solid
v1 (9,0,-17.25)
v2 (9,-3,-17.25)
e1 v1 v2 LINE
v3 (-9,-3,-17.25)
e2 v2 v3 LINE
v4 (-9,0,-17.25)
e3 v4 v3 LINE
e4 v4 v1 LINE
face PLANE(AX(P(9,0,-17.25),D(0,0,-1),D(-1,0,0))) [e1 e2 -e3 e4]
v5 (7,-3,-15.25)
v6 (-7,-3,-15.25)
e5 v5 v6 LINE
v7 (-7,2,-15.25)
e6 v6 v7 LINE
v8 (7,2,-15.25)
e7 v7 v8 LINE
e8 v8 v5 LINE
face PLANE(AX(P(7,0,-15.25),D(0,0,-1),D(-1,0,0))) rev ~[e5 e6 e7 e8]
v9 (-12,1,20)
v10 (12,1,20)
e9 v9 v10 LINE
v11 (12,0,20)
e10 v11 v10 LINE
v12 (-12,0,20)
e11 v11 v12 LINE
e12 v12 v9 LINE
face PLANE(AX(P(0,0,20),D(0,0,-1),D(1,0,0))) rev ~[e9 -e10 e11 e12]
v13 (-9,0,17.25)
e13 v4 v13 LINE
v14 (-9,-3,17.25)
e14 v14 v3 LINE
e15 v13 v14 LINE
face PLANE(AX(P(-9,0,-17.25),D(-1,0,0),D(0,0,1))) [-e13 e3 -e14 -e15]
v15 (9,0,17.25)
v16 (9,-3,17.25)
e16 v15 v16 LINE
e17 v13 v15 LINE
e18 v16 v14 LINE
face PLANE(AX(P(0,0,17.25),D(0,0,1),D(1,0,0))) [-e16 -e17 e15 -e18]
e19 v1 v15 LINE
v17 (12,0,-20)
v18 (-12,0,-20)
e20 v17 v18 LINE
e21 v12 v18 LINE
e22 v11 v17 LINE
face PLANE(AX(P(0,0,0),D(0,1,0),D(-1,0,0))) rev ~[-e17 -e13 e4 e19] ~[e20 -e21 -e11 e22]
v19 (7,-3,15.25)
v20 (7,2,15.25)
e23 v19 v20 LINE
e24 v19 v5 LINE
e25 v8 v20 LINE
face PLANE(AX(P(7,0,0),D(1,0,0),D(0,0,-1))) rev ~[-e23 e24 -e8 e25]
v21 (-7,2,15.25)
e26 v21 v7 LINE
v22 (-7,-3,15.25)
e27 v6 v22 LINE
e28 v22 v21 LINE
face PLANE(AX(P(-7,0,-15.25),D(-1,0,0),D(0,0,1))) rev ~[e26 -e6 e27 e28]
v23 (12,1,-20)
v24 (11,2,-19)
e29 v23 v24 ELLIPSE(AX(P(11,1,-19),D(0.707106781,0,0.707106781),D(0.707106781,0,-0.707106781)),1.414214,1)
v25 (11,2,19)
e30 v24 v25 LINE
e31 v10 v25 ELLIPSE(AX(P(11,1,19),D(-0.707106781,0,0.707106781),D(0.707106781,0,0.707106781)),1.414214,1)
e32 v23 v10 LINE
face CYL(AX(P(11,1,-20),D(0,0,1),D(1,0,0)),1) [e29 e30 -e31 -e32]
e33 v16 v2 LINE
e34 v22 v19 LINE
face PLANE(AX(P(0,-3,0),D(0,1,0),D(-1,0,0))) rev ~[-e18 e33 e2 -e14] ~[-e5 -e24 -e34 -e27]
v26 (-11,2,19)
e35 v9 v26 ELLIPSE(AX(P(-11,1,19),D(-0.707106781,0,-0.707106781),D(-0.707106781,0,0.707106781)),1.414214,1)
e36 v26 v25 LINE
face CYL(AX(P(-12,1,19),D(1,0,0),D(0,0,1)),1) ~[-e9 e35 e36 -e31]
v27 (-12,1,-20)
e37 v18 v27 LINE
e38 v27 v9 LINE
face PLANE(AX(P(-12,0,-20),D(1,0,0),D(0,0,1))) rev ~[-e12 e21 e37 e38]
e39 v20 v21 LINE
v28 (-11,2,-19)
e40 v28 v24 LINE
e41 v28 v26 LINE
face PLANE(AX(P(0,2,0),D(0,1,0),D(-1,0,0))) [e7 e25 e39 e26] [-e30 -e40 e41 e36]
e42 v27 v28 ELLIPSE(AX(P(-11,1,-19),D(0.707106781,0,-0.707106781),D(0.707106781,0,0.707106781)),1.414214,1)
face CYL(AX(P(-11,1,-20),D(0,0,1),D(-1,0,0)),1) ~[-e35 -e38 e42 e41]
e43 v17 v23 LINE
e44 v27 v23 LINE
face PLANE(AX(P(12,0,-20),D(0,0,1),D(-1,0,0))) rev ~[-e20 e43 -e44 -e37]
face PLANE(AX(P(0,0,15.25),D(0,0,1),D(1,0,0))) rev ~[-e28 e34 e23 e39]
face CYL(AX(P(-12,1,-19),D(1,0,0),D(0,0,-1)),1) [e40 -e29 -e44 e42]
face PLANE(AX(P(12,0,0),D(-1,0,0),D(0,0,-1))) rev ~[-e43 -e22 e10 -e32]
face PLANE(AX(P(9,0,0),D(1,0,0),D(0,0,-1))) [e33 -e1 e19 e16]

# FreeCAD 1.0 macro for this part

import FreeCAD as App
import Part
import Sketcher
Q = App.Units.Quantity


def edges_at(feature, points):
    """Names of the edges that pass closest to the given points."""
    edges = feature.Shape.Edges
    near = lambda p: min(range(len(edges)), key=lambda i: edges[i].distToShape(Part.Vertex(*p))[0])
    return sorted({f"Edge{near(p) + 1}" for p in points})

doc = App.newDocument("Part")
body = doc.addObject("PartDesign::Body", "Body")

# Sketch on XZ plane
sketch1 = body.newObject("Sketcher::SketchObject", "Sketch")
sketch1.AttachmentSupport = (doc.getObject("XZ_Plane"), [""])
sketch1.MapMode = "FlatFace"
sketch1.addGeometry([
    Part.LineSegment(App.Vector(9, -17, 0), App.Vector(-9, -17, 0)),  # 0
    Part.LineSegment(App.Vector(-9, -17, 0), App.Vector(-9, 17, 0)),  # 1
    Part.LineSegment(App.Vector(-9, 17, 0), App.Vector(9, 17, 0)),  # 2
    Part.LineSegment(App.Vector(9, 17, 0), App.Vector(9, -17, 0)),  # 3
    Part.LineSegment(App.Vector(7, -15, 0), App.Vector(7, 15, 0)),  # 4
    Part.LineSegment(App.Vector(7, 15, 0), App.Vector(-7, 15, 0)),  # 5
    Part.LineSegment(App.Vector(-7, 15, 0), App.Vector(-7, -15, 0)),  # 6
    Part.LineSegment(App.Vector(-7, -15, 0), App.Vector(7, -15, 0)),  # 7
], False)
sketch1.addConstraint([
    Sketcher.Constraint("Coincident", 0, 2, 1, 1),
    Sketcher.Constraint("Coincident", 1, 2, 2, 1),
    Sketcher.Constraint("Coincident", 2, 2, 3, 1),
    Sketcher.Constraint("Coincident", 3, 2, 0, 1),
    Sketcher.Constraint("Coincident", 4, 2, 5, 1),
    Sketcher.Constraint("Coincident", 5, 2, 6, 1),
    Sketcher.Constraint("Coincident", 6, 2, 7, 1),
    Sketcher.Constraint("Coincident", 7, 2, 4, 1),
    Sketcher.Constraint("Horizontal", 0),
    Sketcher.Constraint("Vertical", 1),
    Sketcher.Constraint("Horizontal", 2),
    Sketcher.Constraint("Vertical", 3),
    Sketcher.Constraint("Vertical", 4),
    Sketcher.Constraint("Horizontal", 5),
    Sketcher.Constraint("Vertical", 6),
    Sketcher.Constraint("Horizontal", 7),
    Sketcher.Constraint("Symmetric", 0, 2, 2, 2, -1, 1),
    Sketcher.Constraint("Symmetric", 4, 2, 6, 2, -1, 1),
    Sketcher.Constraint("DistanceX", 5, 2, 5, 1, Q("14 mm")),
    Sketcher.Constraint("DistanceY", 4, 1, 4, 2, Q("30.5 mm")),
    Sketcher.Constraint("DistanceX", 4, 2, 2, 2, Q("2 mm")),
    Sketcher.Constraint("DistanceY", 4, 2, 2, 2, Q("2 mm")),
])
pad1 = body.newObject("PartDesign::Pad", "Pad")
pad1.Profile = sketch1
pad1.Length = 3

# Sketch on XZ plane
sketch2 = body.newObject("Sketcher::SketchObject", "Sketch001")
sketch2.AttachmentSupport = (doc.getObject("XZ_Plane"), [""])
sketch2.MapMode = "FlatFace"
sketch2.addGeometry([
    Part.LineSegment(App.Vector(12, -20, 0), App.Vector(-12, -20, 0)),  # 0
    Part.LineSegment(App.Vector(-12, -20, 0), App.Vector(-12, 20, 0)),  # 1
    Part.LineSegment(App.Vector(-12, 20, 0), App.Vector(12, 20, 0)),  # 2
    Part.LineSegment(App.Vector(12, 20, 0), App.Vector(12, -20, 0)),  # 3
    Part.LineSegment(App.Vector(7, -15, 0), App.Vector(7, 15, 0)),  # 4
    Part.LineSegment(App.Vector(7, 15, 0), App.Vector(-7, 15, 0)),  # 5
    Part.LineSegment(App.Vector(-7, 15, 0), App.Vector(-7, -15, 0)),  # 6
    Part.LineSegment(App.Vector(-7, -15, 0), App.Vector(7, -15, 0)),  # 7
], False)
sketch2.addConstraint([
    Sketcher.Constraint("Coincident", 0, 2, 1, 1),
    Sketcher.Constraint("Coincident", 1, 2, 2, 1),
    Sketcher.Constraint("Coincident", 2, 2, 3, 1),
    Sketcher.Constraint("Coincident", 3, 2, 0, 1),
    Sketcher.Constraint("Coincident", 4, 2, 5, 1),
    Sketcher.Constraint("Coincident", 5, 2, 6, 1),
    Sketcher.Constraint("Coincident", 6, 2, 7, 1),
    Sketcher.Constraint("Coincident", 7, 2, 4, 1),
    Sketcher.Constraint("Horizontal", 0),
    Sketcher.Constraint("Vertical", 1),
    Sketcher.Constraint("Horizontal", 2),
    Sketcher.Constraint("Vertical", 3),
    Sketcher.Constraint("Vertical", 4),
    Sketcher.Constraint("Horizontal", 5),
    Sketcher.Constraint("Vertical", 6),
    Sketcher.Constraint("Horizontal", 7),
    Sketcher.Constraint("Symmetric", 0, 2, 2, 2, -1, 1),
    Sketcher.Constraint("Symmetric", 4, 2, 6, 2, -1, 1),
    Sketcher.Constraint("DistanceX", 0, 2, 0, 1, Q("24 mm")),
    Sketcher.Constraint("DistanceX", 5, 2, 5, 1, Q("14 mm")),
    Sketcher.Constraint("DistanceY", 1, 1, 1, 2, Q("40 mm")),
    Sketcher.Constraint("DistanceY", 4, 1, 4, 2, Q("30.5 mm")),
])
pad2 = body.newObject("PartDesign::Pad", "Pad001")
pad2.Profile = sketch2
pad2.Length = 2
pad2.Reversed = True
doc.recompute()

fillet = body.newObject("PartDesign::Fillet", "Fillet")
fillet.Base = (pad2, edges_at(pad2, [
    (-12, 2, 0),
    (0, 2, -20),
    (12, 2, 0),
    (0, 2, 20),
]))
fillet.Radius = 1

doc.recompute()
